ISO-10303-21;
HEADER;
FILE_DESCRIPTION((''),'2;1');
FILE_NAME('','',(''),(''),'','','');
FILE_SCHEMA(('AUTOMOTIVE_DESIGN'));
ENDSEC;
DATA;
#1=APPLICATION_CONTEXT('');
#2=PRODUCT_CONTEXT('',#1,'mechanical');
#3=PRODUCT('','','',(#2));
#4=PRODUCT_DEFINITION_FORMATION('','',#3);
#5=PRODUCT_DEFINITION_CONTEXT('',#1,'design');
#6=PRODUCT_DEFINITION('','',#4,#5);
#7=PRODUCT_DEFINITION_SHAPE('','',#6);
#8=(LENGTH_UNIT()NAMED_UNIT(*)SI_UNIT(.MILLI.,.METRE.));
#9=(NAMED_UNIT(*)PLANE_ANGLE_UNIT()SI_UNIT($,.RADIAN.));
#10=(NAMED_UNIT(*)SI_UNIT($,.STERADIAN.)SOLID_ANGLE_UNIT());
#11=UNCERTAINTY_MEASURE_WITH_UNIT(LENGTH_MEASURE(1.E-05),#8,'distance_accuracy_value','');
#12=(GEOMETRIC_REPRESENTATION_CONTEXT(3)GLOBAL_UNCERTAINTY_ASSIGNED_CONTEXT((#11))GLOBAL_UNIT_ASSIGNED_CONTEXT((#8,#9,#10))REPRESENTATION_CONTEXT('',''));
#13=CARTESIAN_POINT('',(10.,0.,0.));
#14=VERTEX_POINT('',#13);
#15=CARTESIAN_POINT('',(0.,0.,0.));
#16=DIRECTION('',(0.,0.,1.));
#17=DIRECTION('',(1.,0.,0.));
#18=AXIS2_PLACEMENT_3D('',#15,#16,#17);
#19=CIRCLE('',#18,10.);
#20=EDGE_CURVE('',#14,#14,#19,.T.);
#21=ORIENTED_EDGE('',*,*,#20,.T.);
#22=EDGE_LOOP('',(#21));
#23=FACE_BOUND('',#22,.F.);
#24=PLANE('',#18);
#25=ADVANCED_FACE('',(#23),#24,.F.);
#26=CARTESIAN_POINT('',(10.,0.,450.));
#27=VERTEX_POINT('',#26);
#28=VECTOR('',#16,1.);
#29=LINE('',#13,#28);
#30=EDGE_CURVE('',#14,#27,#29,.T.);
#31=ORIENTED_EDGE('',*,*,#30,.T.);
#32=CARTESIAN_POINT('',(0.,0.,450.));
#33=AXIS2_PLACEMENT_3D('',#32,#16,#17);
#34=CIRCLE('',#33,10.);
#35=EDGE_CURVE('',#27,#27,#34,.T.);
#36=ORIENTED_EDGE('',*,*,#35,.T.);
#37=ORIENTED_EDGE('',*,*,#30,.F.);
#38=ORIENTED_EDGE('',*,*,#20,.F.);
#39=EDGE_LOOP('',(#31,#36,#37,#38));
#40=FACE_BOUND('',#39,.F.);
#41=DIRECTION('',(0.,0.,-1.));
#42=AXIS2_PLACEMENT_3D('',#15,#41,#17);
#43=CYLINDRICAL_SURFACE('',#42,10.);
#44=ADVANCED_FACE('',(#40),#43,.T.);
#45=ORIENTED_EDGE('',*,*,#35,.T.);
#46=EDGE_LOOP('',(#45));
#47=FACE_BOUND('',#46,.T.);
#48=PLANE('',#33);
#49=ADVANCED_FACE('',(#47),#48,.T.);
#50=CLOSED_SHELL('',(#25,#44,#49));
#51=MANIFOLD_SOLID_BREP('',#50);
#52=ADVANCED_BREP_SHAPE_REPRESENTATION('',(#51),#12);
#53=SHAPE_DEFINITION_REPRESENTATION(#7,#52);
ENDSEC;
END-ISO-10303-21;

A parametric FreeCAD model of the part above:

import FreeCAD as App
import Part
import Sketcher
Q = App.Units.Quantity

doc = App.newDocument("Part")
body = doc.addObject("PartDesign::Body", "Body")

# Sketch on XY plane
sketch1 = doc.addObject("Sketcher::SketchObject", "Sketch")
body.addObject(sketch1)
sketch1.AttachmentSupport = (doc.XY_Plane, [""])
sketch1.MapMode = "FlatFace"
sketch1.addGeometry(Part.Circle(App.Vector(0, 0, 0), App.Vector(0, 0, 1), 10), False)
sketch1.addConstraint([
    Sketcher.Constraint("Coincident", 0, 3, -1, 1),
    Sketcher.Constraint("Diameter", 0, Q("20 mm")),
])
pad1 = doc.addObject("PartDesign::Pad", "Pad")
body.addObject(pad1)
pad1.Profile = sketch1
pad1.Length = 450

doc.recompute()
